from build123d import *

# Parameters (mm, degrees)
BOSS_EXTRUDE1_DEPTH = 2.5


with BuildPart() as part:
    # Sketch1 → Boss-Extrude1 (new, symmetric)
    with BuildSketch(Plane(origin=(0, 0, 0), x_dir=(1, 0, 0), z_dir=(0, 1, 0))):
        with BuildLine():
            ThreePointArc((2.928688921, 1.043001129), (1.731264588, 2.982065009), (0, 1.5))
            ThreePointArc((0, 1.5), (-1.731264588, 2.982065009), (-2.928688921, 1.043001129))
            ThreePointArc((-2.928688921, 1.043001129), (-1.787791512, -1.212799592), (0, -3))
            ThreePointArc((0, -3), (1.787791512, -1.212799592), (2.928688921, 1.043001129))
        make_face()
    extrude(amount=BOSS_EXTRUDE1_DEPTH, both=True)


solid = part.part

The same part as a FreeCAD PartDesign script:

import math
import FreeCAD as App
import Part
import Sketcher

doc = App.newDocument("Part")
params = doc.addObject("Spreadsheet::Sheet", "Params")
for row, (alias, value) in enumerate([
    ("sketch1_radius", "8 mm"),
    ("sketch1_radius2", "1.5 mm"),
    ("pad1_length", "5 mm"),
], start=1):
    params.set(f"A{row}", alias)
    params.set(f"B{row}", "=" + value)
    params.setAlias(f"B{row}", alias)

body = doc.addObject("PartDesign::Body", "Body")

# Sketch on XZ plane
sketch1 = doc.addObject("Sketcher::SketchObject", "Sketch")
body.addObject(sketch1)
sketch1.AttachmentSupport = (doc.XZ_Plane, [""])
sketch1.MapMode = "FlatFace"
sketch1.addGeometry([
    Part.ArcOfCircle(Part.Circle(App.Vector(1.5, -1.5, 0), App.Vector(0, 0, 1), 1.5), math.radians(180), math.radians(378)),
    Part.ArcOfCircle(Part.Circle(App.Vector(-1.5, -1.5, 0), App.Vector(0, 0, 1), 1.5), math.radians(162), math.radians(360)),
    Part.ArcOfCircle(Part.Circle(App.Vector(4.7, -3.5, 0), App.Vector(0, 0, 1), 8), math.radians(126), math.radians(162)),
    Part.ArcOfCircle(Part.Circle(App.Vector(-4.7, -3.5, 0), App.Vector(0, 0, 1), 8), math.radians(18), math.radians(54)),
], False)
sketch1.addConstraint([
    Sketcher.Constraint("Tangent", 0, 1, 1, 2),
    Sketcher.Constraint("Tangent", 1, 1, 2, 2),
    Sketcher.Constraint("Coincident", 2, 1, 3, 2),
    Sketcher.Constraint("Tangent", 3, 1, 0, 2),
    Sketcher.Constraint("Equal", 0, 1),
    Sketcher.Constraint("Equal", 2, 3),
    Sketcher.Constraint("Symmetric", 0, 3, 1, 3, -2),
    Sketcher.Constraint("PointOnObject", 2, 1, -2),
    Sketcher.Constraint("Radius", 2, 8.0),
    Sketcher.Constraint("Radius", 0, 1.5),
    Sketcher.Constraint("DistanceY", -1, 1, 2, 1, 3.0),
    Sketcher.Constraint("DistanceY", 0, 3, -1, 1, 1.5),
])
sketch1.setExpression("Constraints[8]", "Params.sketch1_radius")
sketch1.setExpression("Constraints[9]", "Params.sketch1_radius2")
pad1 = doc.addObject("PartDesign::Pad", "Pad")
body.addObject(pad1)
pad1.Profile = sketch1
pad1.setExpression("Length", "Params.pad1_length")
pad1.Midplane = True

doc.recompute()
